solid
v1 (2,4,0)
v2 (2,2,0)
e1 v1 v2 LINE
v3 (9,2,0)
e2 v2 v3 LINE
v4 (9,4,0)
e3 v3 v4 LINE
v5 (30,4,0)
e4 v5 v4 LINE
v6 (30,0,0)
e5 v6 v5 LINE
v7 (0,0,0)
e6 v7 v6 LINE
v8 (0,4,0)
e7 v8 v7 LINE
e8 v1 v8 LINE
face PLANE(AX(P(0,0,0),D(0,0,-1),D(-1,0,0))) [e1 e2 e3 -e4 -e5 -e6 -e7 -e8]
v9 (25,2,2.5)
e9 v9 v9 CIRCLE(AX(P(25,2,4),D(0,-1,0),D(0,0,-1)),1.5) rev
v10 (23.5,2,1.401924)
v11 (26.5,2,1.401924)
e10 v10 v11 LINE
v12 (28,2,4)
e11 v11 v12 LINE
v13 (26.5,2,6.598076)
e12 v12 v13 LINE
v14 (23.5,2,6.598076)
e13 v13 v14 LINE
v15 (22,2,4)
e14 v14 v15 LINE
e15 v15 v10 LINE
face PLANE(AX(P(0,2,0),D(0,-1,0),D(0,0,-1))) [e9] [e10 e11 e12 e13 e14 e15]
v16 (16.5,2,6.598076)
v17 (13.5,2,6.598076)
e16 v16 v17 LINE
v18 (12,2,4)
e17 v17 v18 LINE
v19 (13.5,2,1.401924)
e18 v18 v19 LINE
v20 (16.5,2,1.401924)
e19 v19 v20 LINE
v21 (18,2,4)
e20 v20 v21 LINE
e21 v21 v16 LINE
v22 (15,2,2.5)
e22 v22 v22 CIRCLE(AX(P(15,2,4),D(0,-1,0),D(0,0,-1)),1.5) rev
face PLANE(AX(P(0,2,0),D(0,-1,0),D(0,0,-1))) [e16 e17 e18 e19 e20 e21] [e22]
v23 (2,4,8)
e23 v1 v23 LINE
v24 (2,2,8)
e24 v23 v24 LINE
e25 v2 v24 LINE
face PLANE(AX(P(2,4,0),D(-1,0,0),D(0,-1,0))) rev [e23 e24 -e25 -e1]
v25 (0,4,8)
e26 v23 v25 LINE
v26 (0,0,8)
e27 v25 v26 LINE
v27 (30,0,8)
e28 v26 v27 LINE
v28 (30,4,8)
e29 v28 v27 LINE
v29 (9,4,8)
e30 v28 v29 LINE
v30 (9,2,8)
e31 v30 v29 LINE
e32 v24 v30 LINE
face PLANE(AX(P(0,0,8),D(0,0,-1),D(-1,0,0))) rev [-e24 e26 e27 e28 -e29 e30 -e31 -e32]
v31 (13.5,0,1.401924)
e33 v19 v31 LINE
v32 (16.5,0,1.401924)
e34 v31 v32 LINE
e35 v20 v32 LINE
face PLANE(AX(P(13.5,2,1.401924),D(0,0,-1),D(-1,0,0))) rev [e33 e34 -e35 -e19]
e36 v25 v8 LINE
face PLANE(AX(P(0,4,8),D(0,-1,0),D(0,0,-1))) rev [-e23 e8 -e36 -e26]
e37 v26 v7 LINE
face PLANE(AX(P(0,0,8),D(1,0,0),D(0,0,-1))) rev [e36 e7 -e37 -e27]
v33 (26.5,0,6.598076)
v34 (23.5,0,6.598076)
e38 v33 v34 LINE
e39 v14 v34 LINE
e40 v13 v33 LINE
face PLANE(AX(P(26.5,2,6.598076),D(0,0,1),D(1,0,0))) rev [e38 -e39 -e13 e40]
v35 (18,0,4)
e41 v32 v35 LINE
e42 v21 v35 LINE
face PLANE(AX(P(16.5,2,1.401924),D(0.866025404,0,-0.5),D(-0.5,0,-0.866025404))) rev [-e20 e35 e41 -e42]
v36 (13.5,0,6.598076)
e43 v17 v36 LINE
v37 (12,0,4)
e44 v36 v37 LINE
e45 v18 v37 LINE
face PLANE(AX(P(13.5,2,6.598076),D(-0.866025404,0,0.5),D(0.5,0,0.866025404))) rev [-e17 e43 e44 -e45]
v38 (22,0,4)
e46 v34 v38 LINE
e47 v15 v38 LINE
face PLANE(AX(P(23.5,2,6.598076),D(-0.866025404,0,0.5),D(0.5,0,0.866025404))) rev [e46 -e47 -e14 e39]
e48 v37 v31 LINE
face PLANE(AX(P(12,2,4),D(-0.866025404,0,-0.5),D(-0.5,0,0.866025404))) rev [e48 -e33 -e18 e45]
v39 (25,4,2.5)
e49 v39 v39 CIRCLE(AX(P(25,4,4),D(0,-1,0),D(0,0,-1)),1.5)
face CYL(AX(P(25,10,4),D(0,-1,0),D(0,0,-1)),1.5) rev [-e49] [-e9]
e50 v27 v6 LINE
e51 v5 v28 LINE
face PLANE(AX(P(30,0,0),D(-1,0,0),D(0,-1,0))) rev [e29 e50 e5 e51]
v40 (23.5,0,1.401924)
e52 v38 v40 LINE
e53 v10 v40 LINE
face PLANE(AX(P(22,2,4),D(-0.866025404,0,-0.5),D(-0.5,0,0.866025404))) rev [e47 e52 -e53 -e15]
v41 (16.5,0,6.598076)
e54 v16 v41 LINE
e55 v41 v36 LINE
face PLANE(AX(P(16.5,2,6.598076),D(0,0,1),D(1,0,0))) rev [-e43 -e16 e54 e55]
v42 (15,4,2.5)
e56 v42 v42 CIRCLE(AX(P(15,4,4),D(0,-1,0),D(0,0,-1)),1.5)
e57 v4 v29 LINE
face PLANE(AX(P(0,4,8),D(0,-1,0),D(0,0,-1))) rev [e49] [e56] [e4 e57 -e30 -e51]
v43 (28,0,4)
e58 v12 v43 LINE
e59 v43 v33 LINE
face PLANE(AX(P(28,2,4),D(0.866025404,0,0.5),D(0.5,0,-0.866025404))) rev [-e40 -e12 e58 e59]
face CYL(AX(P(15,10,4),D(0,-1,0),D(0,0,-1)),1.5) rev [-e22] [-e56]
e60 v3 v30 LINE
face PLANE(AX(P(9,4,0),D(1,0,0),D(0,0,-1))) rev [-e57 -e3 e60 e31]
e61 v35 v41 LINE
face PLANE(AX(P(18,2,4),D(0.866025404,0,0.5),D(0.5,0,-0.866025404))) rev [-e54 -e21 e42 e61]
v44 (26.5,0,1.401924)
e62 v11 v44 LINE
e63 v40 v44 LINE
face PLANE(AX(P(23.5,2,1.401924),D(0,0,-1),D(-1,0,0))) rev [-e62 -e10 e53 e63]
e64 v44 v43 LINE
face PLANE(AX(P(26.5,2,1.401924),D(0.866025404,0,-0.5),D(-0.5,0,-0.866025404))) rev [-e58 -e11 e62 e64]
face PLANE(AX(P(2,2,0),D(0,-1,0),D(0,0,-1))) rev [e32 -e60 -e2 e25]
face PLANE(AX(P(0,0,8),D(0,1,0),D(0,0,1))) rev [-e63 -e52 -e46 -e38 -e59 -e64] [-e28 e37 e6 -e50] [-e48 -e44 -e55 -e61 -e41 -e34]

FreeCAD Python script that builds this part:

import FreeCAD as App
import Part
import Sketcher

V = App.Vector
Q = App.Units.Quantity

doc = App.newDocument("Part")
body = doc.addObject("PartDesign::Body", "Body")

sketch1 = body.newObject("Sketcher::SketchObject", "Sketch")
sketch1.AttachmentSupport = (doc.getObject("XY_Plane"), [""])
sketch1.MapMode = "FlatFace"
sketch1.addGeometry(Part.LineSegment(V(0, 4, 0), V(0, 0, 0)), False)
sketch1.addGeometry(Part.LineSegment(V(0, 0, 0), V(20, 0, 0)), False)
sketch1.addGeometry(Part.LineSegment(V(20, 0, 0), V(20, 4, 0)), False)
sketch1.addGeometry(Part.LineSegment(V(20, 4, 0), V(0, 4, 0)), False)
sketch1.addConstraint(Sketcher.Constraint("Coincident", 0, 2, 1, 1))
sketch1.addConstraint(Sketcher.Constraint("Coincident", 1, 2, 2, 1))
sketch1.addConstraint(Sketcher.Constraint("Coincident", 2, 2, 3, 1))
sketch1.addConstraint(Sketcher.Constraint("Coincident", 3, 2, 0, 1))
sketch1.addConstraint(Sketcher.Constraint("Vertical", 0))
sketch1.addConstraint(Sketcher.Constraint("Horizontal", 1))
sketch1.addConstraint(Sketcher.Constraint("Vertical", 2))
sketch1.addConstraint(Sketcher.Constraint("Horizontal", 3))
sketch1.addConstraint(Sketcher.Constraint("Coincident", 0, 2, -1, 1))
sketch1.addConstraint(Sketcher.Constraint("DistanceX", 1, 1, 1, 2, 20.0))
sketch1.addConstraint(Sketcher.Constraint("DistanceY", 0, 2, 0, 1, 4.0))
pad1 = body.newObject("PartDesign::Pad", "Pad")
pad1.Profile = sketch1
pad1.Length = 8

sketch2 = body.newObject("Sketcher::SketchObject", "Sketch001")
sketch2.AttachmentSupport = (doc.getObject("XY_Plane"), [""])
sketch2.MapMode = "FlatFace"
sketch2.AttachmentOffset = App.Placement(V(0, 0, 8), App.Rotation())
sketch2.addGeometry(Part.LineSegment(V(2, 4, 0), V(2, 2, 0)), False)
sketch2.addGeometry(Part.LineSegment(V(2, 2, 0), V(9, 2, 0)), False)
sketch2.addGeometry(Part.LineSegment(V(9, 2, 0), V(9, 4, 0)), False)
sketch2.addGeometry(Part.LineSegment(V(9, 4, 0), V(2, 4, 0)), False)
sketch2.addConstraint(Sketcher.Constraint("Coincident", 0, 2, 1, 1))
sketch2.addConstraint(Sketcher.Constraint("Coincident", 1, 2, 2, 1))
sketch2.addConstraint(Sketcher.Constraint("Coincident", 2, 2, 3, 1))
sketch2.addConstraint(Sketcher.Constraint("Coincident", 3, 2, 0, 1))
sketch2.addConstraint(Sketcher.Constraint("Vertical", 0))
sketch2.addConstraint(Sketcher.Constraint("Horizontal", 1))
sketch2.addConstraint(Sketcher.Constraint("Vertical", 2))
sketch2.addConstraint(Sketcher.Constraint("Horizontal", 3))
sketch2.addConstraint(Sketcher.Constraint("DistanceX", 1, 1, 1, 2, 7.0))
sketch2.addConstraint(Sketcher.Constraint("DistanceY", 0, 2, 0, 1, 2.0))
sketch2.addConstraint(Sketcher.Constraint("DistanceX", -1, 1, 0, 2, 2.0))
sketch2.addConstraint(Sketcher.Constraint("DistanceY", -1, 1, 0, 2, 2.0))
pocket1 = body.newObject("PartDesign::Pocket", "Pocket")
pocket1.Profile = sketch2
pocket1.Length = 8

sketch3 = body.newObject("Sketcher::SketchObject", "Sketch002")
sketch3.AttachmentSupport = (doc.getObject("YZ_Plane"), [""])
sketch3.MapMode = "FlatFace"
sketch3.AttachmentOffset = App.Placement(V(0, 0, 20), App.Rotation())
sketch3.addGeometry(Part.LineSegment(V(4, 8, 0), V(0, 8, 0)), False)
sketch3.addGeometry(Part.LineSegment(V(0, 8, 0), V(0, 0, 0)), False)
sketch3.addGeometry(Part.LineSegment(V(0, 0, 0), V(4, 0, 0)), False)
sketch3.addGeometry(Part.LineSegment(V(4, 0, 0), V(4, 8, 0)), False)
sketch3.addConstraint(Sketcher.Constraint("Coincident", 0, 2, 1, 1))
sketch3.addConstraint(Sketcher.Constraint("Coincident", 1, 2, 2, 1))
sketch3.addConstraint(Sketcher.Constraint("Coincident", 2, 2, 3, 1))
sketch3.addConstraint(Sketcher.Constraint("Coincident", 3, 2, 0, 1))
sketch3.addConstraint(Sketcher.Constraint("Horizontal", 0))
sketch3.addConstraint(Sketcher.Constraint("Vertical", 1))
sketch3.addConstraint(Sketcher.Constraint("Horizontal", 2))
sketch3.addConstraint(Sketcher.Constraint("Vertical", 3))
sketch3.addConstraint(Sketcher.Constraint("Coincident", 1, 2, -1, 1))
sketch3.addConstraint(Sketcher.Constraint("DistanceX", 0, 2, 0, 1, 4.0))
sketch3.addConstraint(Sketcher.Constraint("DistanceY", 1, 2, 1, 1, 8.0))
pad2 = body.newObject("PartDesign::Pad", "Pad001")
pad2.Profile = sketch3
pad2.Length = 10

sketch4 = body.newObject("Sketcher::SketchObject", "Sketch003")
sketch4.AttachmentSupport = (doc.getObject("XZ_Plane"), [""])
sketch4.MapMode = "FlatFace"
sketch4.addGeometry(Part.Circle(V(25, 4, 0), V(0, 0, 1), 1.5), False)
sketch4.addGeometry(Part.Circle(V(15, 4, 0), V(0, 0, 1), 1.5), False)
sketch4.addConstraint(Sketcher.Constraint("Equal", 0, 1))
sketch4.addConstraint(Sketcher.Constraint("Horizontal", 0, 3, 1, 3))
sketch4.addConstraint(Sketcher.Constraint("Diameter", 0, 3.0))
sketch4.addConstraint(Sketcher.Constraint("DistanceX", -1, 1, 0, 3, 25.0))
sketch4.addConstraint(Sketcher.Constraint("DistanceY", -1, 1, 0, 3, 4.0))
sketch4.addConstraint(Sketcher.Constraint("DistanceX", -1, 1, 1, 3, 15.0))
pocket2 = body.newObject("PartDesign::Pocket", "Pocket001")
pocket2.Profile = sketch4
pocket2.Length = 10

sketch5 = body.newObject("Sketcher::SketchObject", "Sketch004")
sketch5.AttachmentSupport = (doc.getObject("XZ_Plane"), [""])
sketch5.MapMode = "FlatFace"
sketch5.addGeometry(Part.LineSegment(V(22, 4, 0), V(23.5, 1.4, 0)), False)
sketch5.addGeometry(Part.LineSegment(V(23.5, 1.4, 0), V(26.5, 1.4, 0)), False)
sketch5.addGeometry(Part.LineSegment(V(26.5, 1.4, 0), V(28, 4, 0)), False)
sketch5.addGeometry(Part.LineSegment(V(28, 4, 0), V(26.5, 6.6, 0)), False)
sketch5.addGeometry(Part.LineSegment(V(26.5, 6.6, 0), V(23.5, 6.6, 0)), False)
sketch5.addGeometry(Part.LineSegment(V(23.5, 6.6, 0), V(22, 4, 0)), False)
sketch5.addGeometry(Part.LineSegment(V(12, 4, 0), V(13.5, 1.4, 0)), False)
sketch5.addGeometry(Part.LineSegment(V(13.5, 1.4, 0), V(16.5, 1.4, 0)), False)
sketch5.addGeometry(Part.LineSegment(V(16.5, 1.4, 0), V(18, 4, 0)), False)
sketch5.addGeometry(Part.LineSegment(V(18, 4, 0), V(16.5, 6.6, 0)), False)
sketch5.addGeometry(Part.LineSegment(V(16.5, 6.6, 0), V(13.5, 6.6, 0)), False)
sketch5.addGeometry(Part.LineSegment(V(13.5, 6.6, 0), V(12, 4, 0)), False)
sketch5.addConstraint(Sketcher.Constraint("Coincident", 0, 2, 1, 1))
sketch5.addConstraint(Sketcher.Constraint("Coincident", 1, 2, 2, 1))
sketch5.addConstraint(Sketcher.Constraint("Coincident", 2, 2, 3, 1))
sketch5.addConstraint(Sketcher.Constraint("Coincident", 3, 2, 4, 1))
sketch5.addConstraint(Sketcher.Constraint("Coincident", 4, 2, 5, 1))
sketch5.addConstraint(Sketcher.Constraint("Coincident", 5, 2, 0, 1))
sketch5.addConstraint(Sketcher.Constraint("Coincident", 6, 2, 7, 1))
sketch5.addConstraint(Sketcher.Constraint("Coincident", 7, 2, 8, 1))
sketch5.addConstraint(Sketcher.Constraint("Coincident", 8, 2, 9, 1))
sketch5.addConstraint(Sketcher.Constraint("Coincident", 9, 2, 10, 1))
sketch5.addConstraint(Sketcher.Constraint("Coincident", 10, 2, 11, 1))
sketch5.addConstraint(Sketcher.Constraint("Coincident", 11, 2, 6, 1))
sketch5.addConstraint(Sketcher.Constraint("Horizontal", 1))
sketch5.addConstraint(Sketcher.Constraint("Horizontal", 4))
sketch5.addConstraint(Sketcher.Constraint("Horizontal", 7))
sketch5.addConstraint(Sketcher.Constraint("Horizontal", 10))
sketch5.addConstraint(Sketcher.Constraint("Parallel", 0, 3))
sketch5.addConstraint(Sketcher.Constraint("Parallel", 2, 5))
sketch5.addConstraint(Sketcher.Constraint("Parallel", 3, 6))
sketch5.addConstraint(Sketcher.Constraint("Parallel", 5, 8))
sketch5.addConstraint(Sketcher.Constraint("Parallel", 6, 9))
sketch5.addConstraint(Sketcher.Constraint("Parallel", 8, 11))
sketch5.addConstraint(Sketcher.Constraint("Horizontal", 2, 2, 5, 2))
sketch5.addConstraint(Sketcher.Constraint("Horizontal", 1, 2, 6, 2))
sketch5.addConstraint(Sketcher.Constraint("Horizontal", 5, 2, 8, 2))
sketch5.addConstraint(Sketcher.Constraint("Horizontal", 4, 2, 9, 2))
sketch5.addConstraint(Sketcher.Constraint("Horizontal", 8, 2, 11, 2))
sketch5.addConstraint(Sketcher.Constraint("Vertical", 1, 2, 3, 2))
sketch5.addConstraint(Sketcher.Constraint("Vertical", 0, 2, 4, 2))
sketch5.addConstraint(Sketcher.Constraint("Equal", 4, 7))
sketch5.addConstraint(Sketcher.Constraint("DistanceX", 1, 1, 1, 2, 3.0))
sketch5.addConstraint(Sketcher.Constraint("Angle", 0, Q("-60 deg")))
sketch5.addConstraint(Sketcher.Constraint("Distance", 0, 3.0))
sketch5.addConstraint(Sketcher.Constraint("DistanceX", -1, 1, 2, 2, 28.0))
sketch5.addConstraint(Sketcher.Constraint("DistanceY", -1, 1, 2, 2, 4.0))
sketch5.addConstraint(Sketcher.Constraint("DistanceX", -1, 1, 8, 2, 18.0))
pocket3 = body.newObject("PartDesign::Pocket", "Pocket002")
pocket3.Profile = sketch5
pocket3.Length = 2

doc.recompute()
